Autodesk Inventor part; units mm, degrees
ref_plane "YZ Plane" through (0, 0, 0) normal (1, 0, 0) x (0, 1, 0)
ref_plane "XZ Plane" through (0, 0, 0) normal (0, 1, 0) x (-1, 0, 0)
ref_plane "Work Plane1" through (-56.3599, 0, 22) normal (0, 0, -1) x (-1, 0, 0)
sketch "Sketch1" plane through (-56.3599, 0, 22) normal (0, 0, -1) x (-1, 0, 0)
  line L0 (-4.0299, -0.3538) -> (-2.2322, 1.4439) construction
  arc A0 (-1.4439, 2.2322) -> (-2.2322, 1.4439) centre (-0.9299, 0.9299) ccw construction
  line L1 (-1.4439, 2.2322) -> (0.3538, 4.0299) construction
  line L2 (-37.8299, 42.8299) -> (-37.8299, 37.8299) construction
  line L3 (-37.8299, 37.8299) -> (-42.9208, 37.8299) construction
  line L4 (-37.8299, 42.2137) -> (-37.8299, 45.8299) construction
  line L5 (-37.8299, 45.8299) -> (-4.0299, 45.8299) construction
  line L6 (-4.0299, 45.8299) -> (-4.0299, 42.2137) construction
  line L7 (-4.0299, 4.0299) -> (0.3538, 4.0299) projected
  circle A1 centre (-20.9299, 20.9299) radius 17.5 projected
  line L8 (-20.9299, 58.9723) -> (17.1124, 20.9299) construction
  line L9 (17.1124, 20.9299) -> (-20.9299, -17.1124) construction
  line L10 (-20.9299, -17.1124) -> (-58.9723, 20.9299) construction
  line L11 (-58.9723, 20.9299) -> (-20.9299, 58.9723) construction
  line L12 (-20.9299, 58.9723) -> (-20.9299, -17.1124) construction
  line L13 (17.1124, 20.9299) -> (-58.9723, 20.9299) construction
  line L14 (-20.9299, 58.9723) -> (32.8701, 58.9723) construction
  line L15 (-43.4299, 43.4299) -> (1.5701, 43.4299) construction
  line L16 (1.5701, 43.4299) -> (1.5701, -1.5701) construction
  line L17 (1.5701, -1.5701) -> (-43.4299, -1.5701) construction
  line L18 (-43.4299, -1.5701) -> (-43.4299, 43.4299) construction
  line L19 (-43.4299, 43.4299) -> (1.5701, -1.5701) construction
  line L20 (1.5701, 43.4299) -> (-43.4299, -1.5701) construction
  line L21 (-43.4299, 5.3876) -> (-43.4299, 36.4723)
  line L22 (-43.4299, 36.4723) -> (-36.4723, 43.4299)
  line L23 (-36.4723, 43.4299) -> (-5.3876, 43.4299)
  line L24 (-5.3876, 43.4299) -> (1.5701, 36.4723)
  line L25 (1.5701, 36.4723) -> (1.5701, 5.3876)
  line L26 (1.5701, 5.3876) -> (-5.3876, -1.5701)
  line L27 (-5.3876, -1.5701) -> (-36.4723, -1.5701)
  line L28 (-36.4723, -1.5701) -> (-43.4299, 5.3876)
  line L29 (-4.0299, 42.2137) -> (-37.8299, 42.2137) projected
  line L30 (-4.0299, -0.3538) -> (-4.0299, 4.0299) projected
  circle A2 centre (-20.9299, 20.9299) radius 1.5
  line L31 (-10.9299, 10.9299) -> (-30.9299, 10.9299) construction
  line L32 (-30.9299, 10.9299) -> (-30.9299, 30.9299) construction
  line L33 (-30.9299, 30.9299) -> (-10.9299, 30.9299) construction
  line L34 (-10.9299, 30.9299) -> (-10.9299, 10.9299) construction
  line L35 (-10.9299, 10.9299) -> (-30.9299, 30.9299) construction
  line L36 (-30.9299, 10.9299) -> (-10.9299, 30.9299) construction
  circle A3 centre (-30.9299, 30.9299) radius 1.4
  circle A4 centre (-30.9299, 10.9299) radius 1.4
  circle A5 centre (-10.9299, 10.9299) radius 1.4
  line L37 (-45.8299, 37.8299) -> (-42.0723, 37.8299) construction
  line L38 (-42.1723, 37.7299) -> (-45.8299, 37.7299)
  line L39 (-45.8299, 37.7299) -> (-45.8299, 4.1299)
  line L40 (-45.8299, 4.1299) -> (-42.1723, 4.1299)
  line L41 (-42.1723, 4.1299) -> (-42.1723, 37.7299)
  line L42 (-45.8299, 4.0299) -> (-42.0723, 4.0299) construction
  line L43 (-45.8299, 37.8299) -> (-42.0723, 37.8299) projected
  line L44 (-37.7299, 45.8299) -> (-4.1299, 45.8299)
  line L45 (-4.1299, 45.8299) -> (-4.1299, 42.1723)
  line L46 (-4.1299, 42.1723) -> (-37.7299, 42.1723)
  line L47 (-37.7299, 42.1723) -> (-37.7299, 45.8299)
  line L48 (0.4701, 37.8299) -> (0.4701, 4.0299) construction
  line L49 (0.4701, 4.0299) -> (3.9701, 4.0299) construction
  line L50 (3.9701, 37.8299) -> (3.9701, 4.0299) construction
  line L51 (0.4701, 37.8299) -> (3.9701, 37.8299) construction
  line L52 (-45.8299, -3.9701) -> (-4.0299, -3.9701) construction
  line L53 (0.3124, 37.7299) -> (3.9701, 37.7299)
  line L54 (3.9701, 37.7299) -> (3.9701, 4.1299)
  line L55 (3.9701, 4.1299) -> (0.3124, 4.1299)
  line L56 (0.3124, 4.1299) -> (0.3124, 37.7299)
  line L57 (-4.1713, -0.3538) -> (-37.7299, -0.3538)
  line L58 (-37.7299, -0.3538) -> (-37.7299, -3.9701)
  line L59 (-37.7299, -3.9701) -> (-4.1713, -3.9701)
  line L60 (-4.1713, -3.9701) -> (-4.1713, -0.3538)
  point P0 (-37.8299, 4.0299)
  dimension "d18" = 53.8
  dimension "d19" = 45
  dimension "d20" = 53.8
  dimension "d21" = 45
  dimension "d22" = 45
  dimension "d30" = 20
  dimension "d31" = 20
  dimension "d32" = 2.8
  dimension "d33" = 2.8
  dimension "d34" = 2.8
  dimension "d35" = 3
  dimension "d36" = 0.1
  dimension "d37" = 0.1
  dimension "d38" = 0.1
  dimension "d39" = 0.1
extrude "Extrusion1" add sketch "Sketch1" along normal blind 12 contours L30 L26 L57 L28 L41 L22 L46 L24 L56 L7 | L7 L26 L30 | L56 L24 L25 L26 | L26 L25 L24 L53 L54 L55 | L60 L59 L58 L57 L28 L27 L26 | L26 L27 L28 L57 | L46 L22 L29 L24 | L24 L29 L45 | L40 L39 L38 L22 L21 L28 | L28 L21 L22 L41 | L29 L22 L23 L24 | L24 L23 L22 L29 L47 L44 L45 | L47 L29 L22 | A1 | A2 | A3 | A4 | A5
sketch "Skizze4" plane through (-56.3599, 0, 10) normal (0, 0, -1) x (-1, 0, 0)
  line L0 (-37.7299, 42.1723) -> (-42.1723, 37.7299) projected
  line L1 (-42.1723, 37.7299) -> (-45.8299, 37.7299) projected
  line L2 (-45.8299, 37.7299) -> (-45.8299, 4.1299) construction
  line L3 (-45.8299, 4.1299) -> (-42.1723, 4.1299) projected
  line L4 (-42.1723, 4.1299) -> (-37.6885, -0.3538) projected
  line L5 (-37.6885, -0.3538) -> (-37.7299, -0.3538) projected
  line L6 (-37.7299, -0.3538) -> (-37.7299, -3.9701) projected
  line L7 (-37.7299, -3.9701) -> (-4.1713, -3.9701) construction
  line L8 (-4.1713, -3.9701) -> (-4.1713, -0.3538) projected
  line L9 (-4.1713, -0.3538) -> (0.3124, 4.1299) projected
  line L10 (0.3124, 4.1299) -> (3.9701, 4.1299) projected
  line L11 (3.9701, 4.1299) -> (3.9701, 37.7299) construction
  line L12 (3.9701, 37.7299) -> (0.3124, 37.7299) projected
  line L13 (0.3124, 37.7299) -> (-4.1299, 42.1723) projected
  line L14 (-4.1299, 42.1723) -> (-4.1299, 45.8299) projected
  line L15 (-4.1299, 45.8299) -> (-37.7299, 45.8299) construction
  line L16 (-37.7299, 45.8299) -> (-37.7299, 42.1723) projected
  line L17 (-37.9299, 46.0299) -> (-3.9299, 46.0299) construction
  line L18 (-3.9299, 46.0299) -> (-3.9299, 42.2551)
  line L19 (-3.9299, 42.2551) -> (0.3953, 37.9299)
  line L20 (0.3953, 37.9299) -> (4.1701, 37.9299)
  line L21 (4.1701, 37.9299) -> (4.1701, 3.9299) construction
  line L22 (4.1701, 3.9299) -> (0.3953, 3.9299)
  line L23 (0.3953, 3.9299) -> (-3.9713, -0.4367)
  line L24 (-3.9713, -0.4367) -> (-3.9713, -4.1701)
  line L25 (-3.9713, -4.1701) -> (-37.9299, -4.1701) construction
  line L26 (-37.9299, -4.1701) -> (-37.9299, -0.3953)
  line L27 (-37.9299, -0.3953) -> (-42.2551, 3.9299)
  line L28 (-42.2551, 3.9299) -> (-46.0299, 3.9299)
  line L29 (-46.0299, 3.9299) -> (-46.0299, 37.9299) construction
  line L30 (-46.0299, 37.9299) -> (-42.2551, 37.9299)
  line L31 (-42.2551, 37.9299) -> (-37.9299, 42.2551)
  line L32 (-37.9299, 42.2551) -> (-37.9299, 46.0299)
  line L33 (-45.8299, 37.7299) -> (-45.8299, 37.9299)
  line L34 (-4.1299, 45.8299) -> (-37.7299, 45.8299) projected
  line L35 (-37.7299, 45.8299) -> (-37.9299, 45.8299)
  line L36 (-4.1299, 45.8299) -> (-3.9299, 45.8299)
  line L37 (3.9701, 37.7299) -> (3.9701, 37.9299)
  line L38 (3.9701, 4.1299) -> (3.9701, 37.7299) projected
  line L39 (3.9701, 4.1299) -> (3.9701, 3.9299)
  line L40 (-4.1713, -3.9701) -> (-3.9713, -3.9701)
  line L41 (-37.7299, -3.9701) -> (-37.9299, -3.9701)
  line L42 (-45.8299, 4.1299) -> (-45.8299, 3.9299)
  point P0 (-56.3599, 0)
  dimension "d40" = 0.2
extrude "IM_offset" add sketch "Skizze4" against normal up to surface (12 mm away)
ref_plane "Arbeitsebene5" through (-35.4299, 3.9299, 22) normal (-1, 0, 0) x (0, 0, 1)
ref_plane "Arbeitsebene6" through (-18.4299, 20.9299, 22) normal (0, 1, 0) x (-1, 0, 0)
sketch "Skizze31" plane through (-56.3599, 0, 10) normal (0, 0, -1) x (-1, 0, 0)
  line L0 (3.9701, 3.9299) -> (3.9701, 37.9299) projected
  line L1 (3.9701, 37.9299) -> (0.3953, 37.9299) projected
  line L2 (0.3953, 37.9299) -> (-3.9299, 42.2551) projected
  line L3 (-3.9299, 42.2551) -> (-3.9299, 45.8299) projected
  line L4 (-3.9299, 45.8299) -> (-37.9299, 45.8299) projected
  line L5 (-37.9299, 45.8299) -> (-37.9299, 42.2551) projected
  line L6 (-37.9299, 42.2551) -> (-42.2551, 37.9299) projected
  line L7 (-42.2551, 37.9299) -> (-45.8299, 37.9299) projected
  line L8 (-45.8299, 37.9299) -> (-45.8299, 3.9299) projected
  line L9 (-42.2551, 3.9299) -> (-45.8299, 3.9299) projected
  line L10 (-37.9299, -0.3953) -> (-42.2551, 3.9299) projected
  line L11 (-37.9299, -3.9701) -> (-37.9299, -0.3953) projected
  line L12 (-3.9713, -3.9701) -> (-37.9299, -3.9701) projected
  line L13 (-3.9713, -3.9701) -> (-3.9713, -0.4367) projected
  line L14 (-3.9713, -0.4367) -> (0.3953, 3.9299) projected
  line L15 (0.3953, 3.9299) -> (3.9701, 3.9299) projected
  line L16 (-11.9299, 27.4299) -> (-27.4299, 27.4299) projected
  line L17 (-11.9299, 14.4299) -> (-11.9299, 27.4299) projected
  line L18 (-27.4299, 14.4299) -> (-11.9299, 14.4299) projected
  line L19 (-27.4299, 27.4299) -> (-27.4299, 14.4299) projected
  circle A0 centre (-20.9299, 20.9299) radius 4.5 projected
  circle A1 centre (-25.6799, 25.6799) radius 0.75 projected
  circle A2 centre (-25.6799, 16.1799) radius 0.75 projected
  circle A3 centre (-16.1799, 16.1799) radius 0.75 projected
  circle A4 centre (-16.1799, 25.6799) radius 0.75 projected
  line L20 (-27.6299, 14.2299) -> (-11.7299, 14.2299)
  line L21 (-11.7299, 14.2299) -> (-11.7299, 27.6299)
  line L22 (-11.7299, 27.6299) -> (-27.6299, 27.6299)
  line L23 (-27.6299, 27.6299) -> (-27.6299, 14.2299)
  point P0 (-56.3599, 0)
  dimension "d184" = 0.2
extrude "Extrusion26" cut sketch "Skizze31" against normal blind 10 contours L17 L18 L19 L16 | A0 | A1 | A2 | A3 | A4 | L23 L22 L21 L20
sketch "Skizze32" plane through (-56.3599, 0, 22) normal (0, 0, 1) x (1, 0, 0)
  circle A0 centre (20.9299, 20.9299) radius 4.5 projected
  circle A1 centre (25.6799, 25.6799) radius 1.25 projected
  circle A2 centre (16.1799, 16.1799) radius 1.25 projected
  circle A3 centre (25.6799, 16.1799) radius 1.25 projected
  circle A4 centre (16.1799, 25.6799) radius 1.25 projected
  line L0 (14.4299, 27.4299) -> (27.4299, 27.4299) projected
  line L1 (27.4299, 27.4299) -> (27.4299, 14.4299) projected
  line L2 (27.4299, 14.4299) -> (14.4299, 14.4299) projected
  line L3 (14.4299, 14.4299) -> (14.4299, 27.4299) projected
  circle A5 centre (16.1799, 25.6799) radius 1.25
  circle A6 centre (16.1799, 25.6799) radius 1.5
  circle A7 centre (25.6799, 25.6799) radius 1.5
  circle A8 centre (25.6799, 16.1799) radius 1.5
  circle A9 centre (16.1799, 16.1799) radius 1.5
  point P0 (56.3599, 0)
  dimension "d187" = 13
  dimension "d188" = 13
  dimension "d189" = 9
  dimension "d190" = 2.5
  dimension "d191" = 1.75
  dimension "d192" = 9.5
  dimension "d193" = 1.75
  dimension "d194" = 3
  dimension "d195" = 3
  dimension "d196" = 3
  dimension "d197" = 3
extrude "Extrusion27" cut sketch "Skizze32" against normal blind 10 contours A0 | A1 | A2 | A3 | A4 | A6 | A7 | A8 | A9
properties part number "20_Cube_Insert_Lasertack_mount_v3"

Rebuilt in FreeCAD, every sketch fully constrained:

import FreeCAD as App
import Part
import Sketcher
from FreeCAD import Vector


def add_polygon(sketch, points):
    """Adds a closed chain of lines whose ends are joined by coincident constraints."""
    first, n = sketch.GeometryCount, len(points)
    for a, b in zip(points, points[1:] + points[:1]):
        sketch.addGeometry(Part.LineSegment(App.Vector(*a, 0), App.Vector(*b, 0)), False)
    for i in range(n):
        sketch.addConstraint(Sketcher.Constraint("Coincident", first + i, 2, first + (i + 1) % n, 1))

doc = App.newDocument("Part")
body = doc.addObject("PartDesign::Body", "Body")

# Sketch on XY plane
sketch1 = doc.addObject("Sketcher::SketchObject", "Sketch")
body.addObject(sketch1)
sketch1.AttachmentSupport = (doc.XY_Plane, [""])
sketch1.MapMode = "FlatFace"
sketch1.AttachmentOffset = App.Placement(Vector(0, 0, 22), App.Rotation())
add_polygon(sketch1, [(-52.1886, -0.3538), (-56.6723, 4.1299), (-60.33, 4.1299), (-60.33, 37.7299), (-56.672341, 37.729941), (-52.23, 42.1723), (-52.23, 45.8299), (-18.63, 45.8299), (-18.63, 42.1723), (-14.1876, 37.7299), (-10.53, 37.7299), (-10.53, 4.1299), (-14.187641, 4.129941), (-18.671317, -0.3538), (-18.63, -0.3538), (-18.63, -3.9701), (-52.1886, -3.9701)])  # lines 0-16
sketch1.addConstraint([
    Sketcher.Constraint("Horizontal", 1),
    Sketcher.Constraint("Vertical", 2),
    Sketcher.Constraint("Horizontal", 3),
    Sketcher.Constraint("Vertical", 5),
    Sketcher.Constraint("Horizontal", 6),
    Sketcher.Constraint("Vertical", 7),
    Sketcher.Constraint("Horizontal", 9),
    Sketcher.Constraint("Vertical", 10),
    Sketcher.Constraint("Horizontal", 11),
    Sketcher.Constraint("Horizontal", 13),
    Sketcher.Constraint("Vertical", 14),
    Sketcher.Constraint("Horizontal", 15),
    Sketcher.Constraint("Vertical", 16),
    Sketcher.Constraint("Perpendicular", 0, 4),
    Sketcher.Constraint("Perpendicular", 4, 8),
    Sketcher.Constraint("Perpendicular", 8, 12),
    Sketcher.Constraint("Horizontal", 4, 2, 7, 2),
    Sketcher.Constraint("Horizontal", 3, 2, 8, 2),
    Sketcher.Constraint("Horizontal", 1, 2, 10, 2),
    Sketcher.Constraint("Horizontal", 13, 2, 16, 2),
    Sketcher.Constraint("Vertical", 0, 2, 3, 2),
    Sketcher.Constraint("Vertical", 8, 2, 11, 2),
    Sketcher.Constraint("Vertical", 7, 2, 13, 2),
    Sketcher.Constraint("Equal", 3, 9),
    Sketcher.Constraint("Equal", 6, 2),
    Sketcher.Constraint("Equal", 11, 5),
    Sketcher.Constraint("Equal", 4, 8),
    Sketcher.Constraint("DistanceX", 6, 1, 6, 2, 33.6),
    Sketcher.Constraint("DistanceX", 2, 2, 4, 2, 8.1),
    Sketcher.Constraint("DistanceY", 14, 2, 11, 2, 8.1),
    Sketcher.Constraint("DistanceY", -1, 1, 0, 2, 4.13),
    Sketcher.Constraint("DistanceX", 1, 2, -1, 1, 60.33),
    Sketcher.Constraint("Distance", 0, 6.341),
    Sketcher.Constraint("DistanceX", 1, 2, 1, 1, 3.6577),
])
pad1 = doc.addObject("PartDesign::Pad", "Pad")
body.addObject(pad1)
pad1.Profile = sketch1
pad1.Length = 12
pad1.Reversed = True

# Sketch on XY plane
sketch2 = doc.addObject("Sketcher::SketchObject", "Sketch001")
body.addObject(sketch2)
sketch2.AttachmentSupport = (doc.XY_Plane, [""])
sketch2.MapMode = "FlatFace"
sketch2.AttachmentOffset = App.Placement(Vector(0, 0, 10), App.Rotation())
add_polygon(sketch2, [(-60.33, 3.9299), (-60.33, 4.1299), (-56.6723, 4.1299), (-52.1886, -0.3538), (-52.1886, -3.9701), (-52.3886, -3.9701), (-52.3886, -0.4367), (-56.7552, 3.9299)])  # lines 0-7
add_polygon(sketch2, [(-52.43, 45.8299), (-52.23, 45.8299), (-52.23, 42.1723), (-56.6723, 37.7299), (-60.33, 37.7299), (-60.33, 37.9299), (-56.7552, 37.9299), (-52.43, 42.2551)])  # lines 8-15
add_polygon(sketch2, [(-14.1876, 37.7299), (-18.63, 42.1723), (-18.63, 45.8299), (-18.43, 45.8299), (-18.43, 42.2551), (-14.1048, 37.9299), (-10.53, 37.9299), (-10.53, 37.7299)])  # lines 16-23
add_polygon(sketch2, [(-14.1876, 4.1299), (-10.53, 4.1299), (-10.53, 3.9299), (-14.1048, 3.9299), (-18.43, -0.3953), (-18.43, -3.9701), (-18.63, -3.9701), (-18.63, -0.3538), (-18.6714, -0.3538)])  # lines 24-32
sketch2.addConstraint([
    Sketcher.Constraint("Vertical", 0),
    Sketcher.Constraint("Horizontal", 1),
    Sketcher.Constraint("Vertical", 3),
    Sketcher.Constraint("Horizontal", 4),
    Sketcher.Constraint("Vertical", 5),
    Sketcher.Constraint("Horizontal", 7),
    Sketcher.Constraint("Horizontal", 8),
    Sketcher.Constraint("Vertical", 9),
    Sketcher.Constraint("Horizontal", 11),
    Sketcher.Constraint("Vertical", 12),
    Sketcher.Constraint("Horizontal", 13),
    Sketcher.Constraint("Vertical", 15),
    Sketcher.Constraint("Vertical", 17),
    Sketcher.Constraint("Horizontal", 18),
    Sketcher.Constraint("Vertical", 19),
    Sketcher.Constraint("Horizontal", 21),
    Sketcher.Constraint("Vertical", 22),
    Sketcher.Constraint("Horizontal", 23),
    Sketcher.Constraint("Horizontal", 24),
    Sketcher.Constraint("Vertical", 25),
    Sketcher.Constraint("Horizontal", 26),
    Sketcher.Constraint("Vertical", 28),
    Sketcher.Constraint("Horizontal", 29),
    Sketcher.Constraint("Vertical", 30),
    Sketcher.Constraint("Horizontal", 31),
    Sketcher.Constraint("Parallel", 2, 6),
    Sketcher.Constraint("Perpendicular", 6, 10),
    Sketcher.Constraint("Parallel", 10, 14),
    Sketcher.Constraint("Perpendicular", 14, 16),
    Sketcher.Constraint("Parallel", 16, 20),
    Sketcher.Constraint("Perpendicular", 20, 27),
    Sketcher.Constraint("Parallel", 27, 32),
    Sketcher.Constraint("Horizontal", 9, 2, 16, 2),
    Sketcher.Constraint("Horizontal", 15, 2, 17, 2),
    Sketcher.Constraint("Horizontal", 14, 2, 19, 2),
    Sketcher.Constraint("Horizontal", 13, 2, 20, 2),
    Sketcher.Constraint("Horizontal", 11, 2, 22, 2),
    Sketcher.Constraint("Horizontal", 1, 2, 24, 2),
    Sketcher.Constraint("Horizontal", 7, 2, 25, 2),
    Sketcher.Constraint("Horizontal", 4, 2, 28, 2),
    Sketcher.Constraint("Horizontal", 2, 2, 30, 2),
    Sketcher.Constraint("Vertical", 1, 2, 10, 2),
    Sketcher.Constraint("Vertical", 7, 2, 11, 2),
    Sketcher.Constraint("Vertical", 6, 2, 13, 2),
    Sketcher.Constraint("Vertical", 22, 2, 24, 2),
    Sketcher.Constraint("Vertical", 20, 2, 26, 2),
    Sketcher.Constraint("Vertical", 19, 2, 27, 2),
    Sketcher.Constraint("Vertical", 17, 2, 29, 2),
    Sketcher.Constraint("Vertical", 23, 2, 32, 2),
    Sketcher.Constraint("Equal", 4, 8),
    Sketcher.Constraint("Equal", 8, 18),
    Sketcher.Constraint("Equal", 13, 21),
    Sketcher.Constraint("Equal", 11, 23),
    Sketcher.Constraint("Equal", 29, 0),
    Sketcher.Constraint("Equal", 24, 9),
    Sketcher.Constraint("Equal", 0, 12),
    Sketcher.Constraint("Equal", 19, 28),
    Sketcher.Constraint("DistanceX", 4, 2, 4, 1, 0.2),
    Sketcher.Constraint("DistanceX", 15, 2, 18, 2, 34.0),
    Sketcher.Constraint("DistanceY", 25, 2, 21, 2, 34.0),
    Sketcher.Constraint("DistanceY", 3, 2, 1, 2, 8.1),
    Sketcher.Constraint("DistanceX", 0, 2, -1, 1, 60.33),
    Sketcher.Constraint("DistanceY", -1, 1, 0, 2, 4.13),
    Sketcher.Constraint("Distance", 2, 6.341),
    Sketcher.Constraint("DistanceX", 1, 1, 1, 2, 3.6577),
    Sketcher.Constraint("DistanceX", 7, 2, 7, 1, 3.5748),
])
pad2 = doc.addObject("PartDesign::Pad", "Pad001")
body.addObject(pad2)
pad2.Profile = sketch2
pad2.Length = 12

# Sketch on XY plane
sketch3 = doc.addObject("Sketcher::SketchObject", "Sketch002")
body.addObject(sketch3)
sketch3.AttachmentSupport = (doc.XY_Plane, [""])
sketch3.MapMode = "FlatFace"
sketch3.AttachmentOffset = App.Placement(Vector(0, 0, 10), App.Rotation())
add_polygon(sketch3, [(-28.73, 27.6299), (-28.73, 14.2299), (-44.63, 14.2299), (-44.63, 27.6299)])  # lines 0-3
sketch3.addConstraint([
    Sketcher.Constraint("Vertical", 0),
    Sketcher.Constraint("Horizontal", 1),
    Sketcher.Constraint("Vertical", 2),
    Sketcher.Constraint("Horizontal", 3),
    Sketcher.Constraint("DistanceX", 1, 2, 1, 1, 15.9),
    Sketcher.Constraint("DistanceY", 0, 2, 0, 1, 13.4),
    Sketcher.Constraint("DistanceX", 0, 2, -1, 1, 28.73),
    Sketcher.Constraint("DistanceY", -1, 1, 0, 2, 14.23),
])
pocket1 = doc.addObject("PartDesign::Pocket", "Pocket")
body.addObject(pocket1)
pocket1.Profile = sketch3
pocket1.Length = 10
pocket1.Reversed = True

# Sketch on XY plane
sketch4 = doc.addObject("Sketcher::SketchObject", "Sketch003")
body.addObject(sketch4)
sketch4.AttachmentSupport = (doc.XY_Plane, [""])
sketch4.MapMode = "FlatFace"
sketch4.AttachmentOffset = App.Placement(Vector(0, 0, 22), App.Rotation())
sketch4.addGeometry([
    Part.Circle(Vector(-35.43, 20.9299, 0), Vector(0, 0, 1), 4.5),  # 0
    Part.Circle(Vector(-30.68, 25.6799, 0), Vector(0, 0, 1), 1.5),  # 1
    Part.Circle(Vector(-40.18, 16.1799, 0), Vector(0, 0, 1), 1.5),  # 2
    Part.Circle(Vector(-30.68, 16.1799, 0), Vector(0, 0, 1), 1.5),  # 3
    Part.Circle(Vector(-40.18, 25.6799, 0), Vector(0, 0, 1), 1.5),  # 4
], False)
sketch4.addConstraint([
    Sketcher.Constraint("Equal", 1, 2),
    Sketcher.Constraint("Equal", 2, 3),
    Sketcher.Constraint("Equal", 3, 4),
    Sketcher.Constraint("Horizontal", 2, 3, 3, 3),
    Sketcher.Constraint("Horizontal", 1, 3, 4, 3),
    Sketcher.Constraint("Vertical", 1, 3, 3, 3),
    Sketcher.Constraint("Vertical", 2, 3, 4, 3),
    Sketcher.Constraint("Diameter", 0, 9.0),
    Sketcher.Constraint("Diameter", 1, 3.0),
    Sketcher.Constraint("DistanceX", 2, 3, 1, 3, 9.5),
    Sketcher.Constraint("DistanceY", 2, 3, 1, 3, 9.5),
    Sketcher.Constraint("DistanceX", 0, 3, -1, 1, 35.43),
    Sketcher.Constraint("DistanceY", -1, 1, 0, 3, 20.93),
    Sketcher.Constraint("DistanceX", 1, 3, -1, 1, 30.68),
    Sketcher.Constraint("DistanceY", -1, 1, 1, 3, 25.68),
])
pocket2 = doc.addObject("PartDesign::Pocket", "Pocket001")
body.addObject(pocket2)
pocket2.Profile = sketch4
pocket2.Length = 10

doc.recompute()
